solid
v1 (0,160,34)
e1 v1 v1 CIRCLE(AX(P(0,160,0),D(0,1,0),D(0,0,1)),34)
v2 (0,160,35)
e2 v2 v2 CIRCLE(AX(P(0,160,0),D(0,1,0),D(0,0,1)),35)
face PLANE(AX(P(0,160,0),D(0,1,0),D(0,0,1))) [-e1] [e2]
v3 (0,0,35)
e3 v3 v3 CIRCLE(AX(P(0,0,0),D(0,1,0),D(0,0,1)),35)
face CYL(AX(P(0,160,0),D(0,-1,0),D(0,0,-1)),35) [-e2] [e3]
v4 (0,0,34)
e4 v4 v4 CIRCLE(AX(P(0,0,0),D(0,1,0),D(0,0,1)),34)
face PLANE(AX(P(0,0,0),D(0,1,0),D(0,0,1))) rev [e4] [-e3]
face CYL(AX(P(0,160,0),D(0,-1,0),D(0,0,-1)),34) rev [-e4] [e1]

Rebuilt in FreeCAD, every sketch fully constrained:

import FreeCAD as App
import Part
import Sketcher
Q = App.Units.Quantity

doc = App.newDocument("Part")
body = doc.addObject("PartDesign::Body", "Body")

# Sketch on XZ plane
sketch1 = body.newObject("Sketcher::SketchObject", "Sketch")
sketch1.AttachmentSupport = (doc.getObject("XZ_Plane"), [""])
sketch1.MapMode = "FlatFace"
sketch1.addGeometry([
    Part.Circle(App.Vector(0, 0, 0), App.Vector(0, 0, 1), 35),
    Part.Circle(App.Vector(0, 0, 0), App.Vector(0, 0, 1), 34),
], False)
sketch1.addConstraint([
    Sketcher.Constraint("Coincident", 0, 3, -1, 1),
    Sketcher.Constraint("Coincident", 1, 3, -1, 1),
    Sketcher.Constraint("Diameter", 0, Q("70 mm")),
    Sketcher.Constraint("Diameter", 1, Q("68 mm")),
])
pad1 = body.newObject("PartDesign::Pad", "Pad")
pad1.Profile = sketch1
pad1.Length = 160
pad1.Reversed = True

doc.recompute()
